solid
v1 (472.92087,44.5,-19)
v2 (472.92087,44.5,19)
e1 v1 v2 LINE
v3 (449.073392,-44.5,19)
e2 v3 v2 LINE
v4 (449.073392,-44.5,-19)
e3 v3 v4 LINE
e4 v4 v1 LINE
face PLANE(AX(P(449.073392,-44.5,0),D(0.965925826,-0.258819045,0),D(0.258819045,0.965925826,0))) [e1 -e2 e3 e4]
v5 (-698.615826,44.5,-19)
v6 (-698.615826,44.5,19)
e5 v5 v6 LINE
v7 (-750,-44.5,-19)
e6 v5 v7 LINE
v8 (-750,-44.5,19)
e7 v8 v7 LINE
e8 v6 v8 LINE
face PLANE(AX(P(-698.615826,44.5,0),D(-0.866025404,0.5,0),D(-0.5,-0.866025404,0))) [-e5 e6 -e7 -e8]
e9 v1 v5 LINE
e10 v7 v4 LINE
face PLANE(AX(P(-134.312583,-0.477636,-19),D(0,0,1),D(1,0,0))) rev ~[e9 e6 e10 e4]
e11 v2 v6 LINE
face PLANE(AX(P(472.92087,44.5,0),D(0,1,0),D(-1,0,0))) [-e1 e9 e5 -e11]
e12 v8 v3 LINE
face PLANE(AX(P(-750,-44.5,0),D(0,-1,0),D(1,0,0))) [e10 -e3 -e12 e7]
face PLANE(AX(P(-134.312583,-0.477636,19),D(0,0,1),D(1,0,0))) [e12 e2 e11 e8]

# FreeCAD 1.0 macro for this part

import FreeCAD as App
import Part
import Sketcher
Q = App.Units.Quantity


def add_polygon(sketch, points):
    """Adds a closed chain of lines whose ends are joined by coincident constraints."""
    first, n = sketch.GeometryCount, len(points)
    for a, b in zip(points, points[1:] + points[:1]):
        sketch.addGeometry(Part.LineSegment(App.Vector(*a, 0), App.Vector(*b, 0)), False)
    for i in range(n):
        sketch.addConstraint(Sketcher.Constraint("Coincident", first + i, 2, first + (i + 1) % n, 1))

doc = App.newDocument("Part")
body = doc.addObject("PartDesign::Body", "Body")

# Sketch on XY plane
sketch1 = body.newObject("Sketcher::SketchObject", "Sketch")
sketch1.AttachmentSupport = (doc.getObject("XY_Plane"), [""])
sketch1.MapMode = "FlatFace"
add_polygon(sketch1, [(449, -44), (473, 44), (-699, 44), (-750, -44)])  # lines 0-3
sketch1.addConstraint(Sketcher.Constraint("Horizontal", 1))
sketch1.addConstraint(Sketcher.Constraint("Horizontal", 3))
sketch1.addConstraint(Sketcher.Constraint("Angle", 0, Q("75 deg")))
sketch1.addConstraint(Sketcher.Constraint("Angle", 2, Q("-120 deg")))
sketch1.addConstraint(Sketcher.Constraint("DistanceX", 2, 2, -1, 1, Q("750 mm")))
sketch1.addConstraint(Sketcher.Constraint("DistanceY", 2, 2, 1, 2, Q("89 mm")))
sketch1.addConstraint(Sketcher.Constraint("DistanceY", -1, 1, 0, 2, Q("44.5 mm")))
sketch1.addConstraint(Sketcher.Constraint("DistanceX", 3, 1, 3, 2, Q("1199.073392 mm")))
pad1 = body.newObject("PartDesign::Pad", "Pad")
pad1.Profile = sketch1
pad1.Length = 38
pad1.Midplane = True

doc.recompute()
